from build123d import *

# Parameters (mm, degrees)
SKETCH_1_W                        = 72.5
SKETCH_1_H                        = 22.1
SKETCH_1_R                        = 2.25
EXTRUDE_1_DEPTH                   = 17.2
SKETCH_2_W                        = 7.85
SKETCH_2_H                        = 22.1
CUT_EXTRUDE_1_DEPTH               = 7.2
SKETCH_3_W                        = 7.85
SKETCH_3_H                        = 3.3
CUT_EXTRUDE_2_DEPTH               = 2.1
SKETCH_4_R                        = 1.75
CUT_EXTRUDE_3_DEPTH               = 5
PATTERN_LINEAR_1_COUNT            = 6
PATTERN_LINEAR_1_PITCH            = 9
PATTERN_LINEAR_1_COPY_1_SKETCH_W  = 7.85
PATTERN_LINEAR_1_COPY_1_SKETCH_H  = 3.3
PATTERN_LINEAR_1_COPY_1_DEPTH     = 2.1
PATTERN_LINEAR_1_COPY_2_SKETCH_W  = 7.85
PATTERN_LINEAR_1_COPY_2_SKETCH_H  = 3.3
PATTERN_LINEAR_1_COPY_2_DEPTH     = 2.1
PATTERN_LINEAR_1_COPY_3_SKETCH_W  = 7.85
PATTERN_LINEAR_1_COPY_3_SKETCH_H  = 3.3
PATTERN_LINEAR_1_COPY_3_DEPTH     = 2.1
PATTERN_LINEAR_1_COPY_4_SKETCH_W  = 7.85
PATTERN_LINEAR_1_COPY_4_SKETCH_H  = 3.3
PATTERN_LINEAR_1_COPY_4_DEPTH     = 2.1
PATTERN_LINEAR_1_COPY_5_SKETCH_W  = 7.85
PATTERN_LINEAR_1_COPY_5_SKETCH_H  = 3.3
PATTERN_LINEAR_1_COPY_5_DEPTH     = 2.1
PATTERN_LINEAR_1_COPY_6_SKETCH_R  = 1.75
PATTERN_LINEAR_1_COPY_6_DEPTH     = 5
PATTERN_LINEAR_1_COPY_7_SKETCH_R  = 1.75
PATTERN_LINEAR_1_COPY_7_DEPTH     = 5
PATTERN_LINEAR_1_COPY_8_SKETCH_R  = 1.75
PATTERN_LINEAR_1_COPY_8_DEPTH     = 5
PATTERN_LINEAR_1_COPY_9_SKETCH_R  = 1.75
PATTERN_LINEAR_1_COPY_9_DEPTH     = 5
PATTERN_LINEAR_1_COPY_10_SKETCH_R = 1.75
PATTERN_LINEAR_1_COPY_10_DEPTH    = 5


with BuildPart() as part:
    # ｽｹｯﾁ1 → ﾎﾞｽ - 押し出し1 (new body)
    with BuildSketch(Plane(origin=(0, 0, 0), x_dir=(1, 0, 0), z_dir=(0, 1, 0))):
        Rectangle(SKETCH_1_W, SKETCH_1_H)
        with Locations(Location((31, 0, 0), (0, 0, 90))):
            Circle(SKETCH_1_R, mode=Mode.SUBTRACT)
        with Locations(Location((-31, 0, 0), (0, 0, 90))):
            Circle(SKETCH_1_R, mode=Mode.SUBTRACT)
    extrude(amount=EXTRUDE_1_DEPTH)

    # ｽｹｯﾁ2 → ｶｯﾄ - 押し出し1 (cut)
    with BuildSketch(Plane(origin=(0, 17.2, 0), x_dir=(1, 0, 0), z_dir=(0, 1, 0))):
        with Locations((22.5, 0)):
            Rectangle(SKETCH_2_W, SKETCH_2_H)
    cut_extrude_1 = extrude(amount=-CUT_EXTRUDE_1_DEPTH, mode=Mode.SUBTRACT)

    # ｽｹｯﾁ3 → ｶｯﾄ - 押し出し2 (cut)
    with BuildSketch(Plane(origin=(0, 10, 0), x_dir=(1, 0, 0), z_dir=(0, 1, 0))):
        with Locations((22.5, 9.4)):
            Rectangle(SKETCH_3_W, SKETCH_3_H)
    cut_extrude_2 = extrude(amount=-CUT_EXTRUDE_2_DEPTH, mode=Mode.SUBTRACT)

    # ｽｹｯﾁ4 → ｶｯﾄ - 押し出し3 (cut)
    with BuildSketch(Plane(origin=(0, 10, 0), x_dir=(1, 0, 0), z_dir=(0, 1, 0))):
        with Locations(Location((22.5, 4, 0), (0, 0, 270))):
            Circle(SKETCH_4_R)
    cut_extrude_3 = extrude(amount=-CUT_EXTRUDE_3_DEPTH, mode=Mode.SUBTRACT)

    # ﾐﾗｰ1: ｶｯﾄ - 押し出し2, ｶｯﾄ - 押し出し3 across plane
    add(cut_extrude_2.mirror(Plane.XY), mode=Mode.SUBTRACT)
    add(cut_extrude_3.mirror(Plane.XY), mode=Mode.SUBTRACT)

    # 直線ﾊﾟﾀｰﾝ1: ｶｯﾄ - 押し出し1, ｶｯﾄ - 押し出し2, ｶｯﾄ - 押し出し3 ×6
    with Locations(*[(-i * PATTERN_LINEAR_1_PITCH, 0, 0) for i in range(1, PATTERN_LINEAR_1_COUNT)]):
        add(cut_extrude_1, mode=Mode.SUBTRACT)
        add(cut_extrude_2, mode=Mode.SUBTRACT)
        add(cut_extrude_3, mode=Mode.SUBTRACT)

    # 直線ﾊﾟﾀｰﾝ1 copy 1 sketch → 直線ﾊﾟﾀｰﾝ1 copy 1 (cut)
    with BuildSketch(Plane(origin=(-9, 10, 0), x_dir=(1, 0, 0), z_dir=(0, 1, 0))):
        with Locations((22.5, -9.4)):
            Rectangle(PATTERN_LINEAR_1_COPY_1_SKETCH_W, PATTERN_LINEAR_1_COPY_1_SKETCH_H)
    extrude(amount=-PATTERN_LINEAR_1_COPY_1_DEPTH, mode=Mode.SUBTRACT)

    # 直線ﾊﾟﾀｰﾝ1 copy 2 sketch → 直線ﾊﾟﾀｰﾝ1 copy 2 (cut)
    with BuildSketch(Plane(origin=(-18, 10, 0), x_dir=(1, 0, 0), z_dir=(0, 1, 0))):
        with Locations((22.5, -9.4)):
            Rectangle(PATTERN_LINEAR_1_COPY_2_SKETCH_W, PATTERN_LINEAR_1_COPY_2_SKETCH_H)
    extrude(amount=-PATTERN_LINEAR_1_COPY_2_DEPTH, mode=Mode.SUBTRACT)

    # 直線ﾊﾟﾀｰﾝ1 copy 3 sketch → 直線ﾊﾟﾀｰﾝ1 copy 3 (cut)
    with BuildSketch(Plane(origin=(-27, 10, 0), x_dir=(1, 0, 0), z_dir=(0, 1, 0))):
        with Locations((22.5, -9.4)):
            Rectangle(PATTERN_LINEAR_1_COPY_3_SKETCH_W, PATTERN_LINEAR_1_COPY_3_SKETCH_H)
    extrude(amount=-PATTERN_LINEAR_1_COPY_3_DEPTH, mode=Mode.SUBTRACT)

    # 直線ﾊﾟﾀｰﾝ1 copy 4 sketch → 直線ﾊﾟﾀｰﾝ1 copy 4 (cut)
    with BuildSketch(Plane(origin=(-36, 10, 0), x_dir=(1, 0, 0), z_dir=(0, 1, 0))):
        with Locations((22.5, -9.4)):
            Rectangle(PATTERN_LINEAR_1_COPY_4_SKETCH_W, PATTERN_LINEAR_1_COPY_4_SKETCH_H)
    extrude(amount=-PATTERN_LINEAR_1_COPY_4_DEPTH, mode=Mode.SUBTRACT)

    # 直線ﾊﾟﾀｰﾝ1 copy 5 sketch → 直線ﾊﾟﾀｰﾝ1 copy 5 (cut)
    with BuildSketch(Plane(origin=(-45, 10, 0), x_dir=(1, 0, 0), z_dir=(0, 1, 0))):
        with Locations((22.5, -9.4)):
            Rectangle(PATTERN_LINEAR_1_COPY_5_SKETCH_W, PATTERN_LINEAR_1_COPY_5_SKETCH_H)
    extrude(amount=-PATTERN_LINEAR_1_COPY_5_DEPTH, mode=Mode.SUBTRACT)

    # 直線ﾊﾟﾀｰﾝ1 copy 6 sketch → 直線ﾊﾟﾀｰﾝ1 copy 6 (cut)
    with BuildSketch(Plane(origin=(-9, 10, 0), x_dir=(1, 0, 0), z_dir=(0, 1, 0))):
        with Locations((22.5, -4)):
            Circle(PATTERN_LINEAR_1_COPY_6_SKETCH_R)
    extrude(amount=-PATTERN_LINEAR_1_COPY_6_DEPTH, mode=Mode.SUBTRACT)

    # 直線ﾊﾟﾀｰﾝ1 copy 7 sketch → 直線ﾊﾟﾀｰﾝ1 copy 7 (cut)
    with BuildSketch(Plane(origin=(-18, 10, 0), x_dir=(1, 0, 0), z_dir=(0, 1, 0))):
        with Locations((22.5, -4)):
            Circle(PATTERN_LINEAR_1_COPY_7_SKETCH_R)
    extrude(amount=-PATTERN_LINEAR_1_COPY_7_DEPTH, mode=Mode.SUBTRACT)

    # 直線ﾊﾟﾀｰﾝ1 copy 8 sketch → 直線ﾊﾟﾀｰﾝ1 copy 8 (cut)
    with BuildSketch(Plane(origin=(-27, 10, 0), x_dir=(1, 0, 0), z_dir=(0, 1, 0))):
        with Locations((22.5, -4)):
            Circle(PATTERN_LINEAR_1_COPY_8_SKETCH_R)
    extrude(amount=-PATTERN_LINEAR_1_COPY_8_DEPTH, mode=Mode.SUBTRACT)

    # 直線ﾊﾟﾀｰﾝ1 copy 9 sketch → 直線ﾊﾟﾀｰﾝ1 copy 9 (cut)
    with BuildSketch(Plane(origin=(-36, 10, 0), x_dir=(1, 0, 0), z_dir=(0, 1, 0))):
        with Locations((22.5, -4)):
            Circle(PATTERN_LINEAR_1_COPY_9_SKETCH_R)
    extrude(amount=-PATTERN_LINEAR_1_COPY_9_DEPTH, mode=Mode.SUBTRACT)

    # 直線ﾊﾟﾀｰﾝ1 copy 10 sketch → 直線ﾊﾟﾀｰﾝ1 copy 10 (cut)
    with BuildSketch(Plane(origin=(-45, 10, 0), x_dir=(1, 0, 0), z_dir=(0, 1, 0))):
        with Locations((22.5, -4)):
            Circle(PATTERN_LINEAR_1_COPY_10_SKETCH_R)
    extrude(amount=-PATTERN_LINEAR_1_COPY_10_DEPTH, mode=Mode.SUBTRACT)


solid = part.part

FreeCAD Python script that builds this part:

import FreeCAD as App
import Part
import Sketcher
Q = App.Units.Quantity

doc = App.newDocument("Part")
body = doc.addObject("PartDesign::Body", "Body")

# Sketch on XZ plane
sketch1 = body.newObject("Sketcher::SketchObject", "Sketch")
sketch1.AttachmentSupport = (doc.getObject("XZ_Plane"), [""])
sketch1.MapMode = "FlatFace"
sketch1.addGeometry([
    Part.LineSegment(App.Vector(-36.2, -11.1, 0), App.Vector(-36.2, 11.1, 0)),  # 0
    Part.LineSegment(App.Vector(-36.2, 11.1, 0), App.Vector(36.2, 11.1, 0)),  # 1
    Part.LineSegment(App.Vector(36.2, 11.1, 0), App.Vector(36.2, -11.1, 0)),  # 2
    Part.LineSegment(App.Vector(36.2, -11.1, 0), App.Vector(-36.2, -11.1, 0)),  # 3
    Part.Circle(App.Vector(-31, 0, 0), App.Vector(0, 0, 1), 2.2),  # 4
    Part.Circle(App.Vector(31, 0, 0), App.Vector(0, 0, 1), 2.2),  # 5
], False)
sketch1.addConstraint([
    Sketcher.Constraint("Coincident", 0, 2, 1, 1),
    Sketcher.Constraint("Coincident", 1, 2, 2, 1),
    Sketcher.Constraint("Coincident", 2, 2, 3, 1),
    Sketcher.Constraint("Coincident", 3, 2, 0, 1),
    Sketcher.Constraint("Vertical", 0),
    Sketcher.Constraint("Horizontal", 1),
    Sketcher.Constraint("Vertical", 2),
    Sketcher.Constraint("Horizontal", 3),
    Sketcher.Constraint("Equal", 4, 5),
    Sketcher.Constraint("Symmetric", 4, 3, 5, 3, -1, 1),
    Sketcher.Constraint("Symmetric", 0, 2, 2, 2, -1, 1),
    Sketcher.Constraint("PointOnObject", 4, 3, -1),
    Sketcher.Constraint("Diameter", 4, Q("4.5 mm")),
    Sketcher.Constraint("DistanceX", 1, 1, 1, 2, Q("72.5 mm")),
    Sketcher.Constraint("DistanceY", 0, 1, 0, 2, Q("22.1 mm")),
    Sketcher.Constraint("DistanceX", 4, 3, -1, 1, Q("31 mm")),
])
pad1 = body.newObject("PartDesign::Pad", "Pad")
pad1.Profile = sketch1
pad1.Length = 17.2
pad1.Reversed = True

# Sketch on XZ plane
sketch2 = body.newObject("Sketcher::SketchObject", "Sketch001")
sketch2.AttachmentSupport = (doc.getObject("XZ_Plane"), [""])
sketch2.MapMode = "FlatFace"
sketch2.AttachmentOffset = App.Placement(App.Vector(0, 0, -17.2), App.Rotation())
sketch2.addGeometry([
    Part.LineSegment(App.Vector(19, -11, 0), App.Vector(19, 11, 0)),
    Part.LineSegment(App.Vector(19, 11, 0), App.Vector(26, 11, 0)),
    Part.LineSegment(App.Vector(26, 11, 0), App.Vector(26, -11, 0)),
    Part.LineSegment(App.Vector(26, -11, 0), App.Vector(19, -11, 0)),
], False)
sketch2.addConstraint([
    Sketcher.Constraint("Coincident", 0, 2, 1, 1),
    Sketcher.Constraint("Coincident", 1, 2, 2, 1),
    Sketcher.Constraint("Coincident", 2, 2, 3, 1),
    Sketcher.Constraint("Coincident", 3, 2, 0, 1),
    Sketcher.Constraint("Vertical", 0),
    Sketcher.Constraint("Horizontal", 1),
    Sketcher.Constraint("Vertical", 2),
    Sketcher.Constraint("Horizontal", 3),
    Sketcher.Constraint("DistanceY", 0, 1, 0, 2, Q("22.1 mm")),
    Sketcher.Constraint("DistanceX", 1, 1, 1, 2, Q("7.85 mm")),
    Sketcher.Constraint("DistanceY", -1, 1, 0, 2, Q("11.05 mm")),
    Sketcher.Constraint("DistanceX", -1, 1, 0, 2, Q("18.575 mm")),
])
pocket1 = body.newObject("PartDesign::Pocket", "Pocket")
pocket1.Profile = sketch2
pocket1.Length = 7.2
pocket1.Reversed = True

# Sketch on XZ plane
sketch3 = body.newObject("Sketcher::SketchObject", "Sketch002")
sketch3.AttachmentSupport = (doc.getObject("XZ_Plane"), [""])
sketch3.MapMode = "FlatFace"
sketch3.AttachmentOffset = App.Placement(App.Vector(0, 0, -10), App.Rotation())
sketch3.addGeometry([
    Part.LineSegment(App.Vector(18.6, -11.1, 0), App.Vector(18.6, -7.8, 0)),
    Part.LineSegment(App.Vector(18.6, -7.8, 0), App.Vector(26.4, -7.8, 0)),
    Part.LineSegment(App.Vector(26.4, -7.8, 0), App.Vector(26.4, -11.1, 0)),
    Part.LineSegment(App.Vector(26.4, -11.1, 0), App.Vector(18.6, -11.1, 0)),
], False)
sketch3.addConstraint([
    Sketcher.Constraint("Coincident", 0, 2, 1, 1),
    Sketcher.Constraint("Coincident", 1, 2, 2, 1),
    Sketcher.Constraint("Coincident", 2, 2, 3, 1),
    Sketcher.Constraint("Coincident", 3, 2, 0, 1),
    Sketcher.Constraint("Vertical", 0),
    Sketcher.Constraint("Horizontal", 1),
    Sketcher.Constraint("Vertical", 2),
    Sketcher.Constraint("Horizontal", 3),
    Sketcher.Constraint("DistanceY", 0, 1, 0, 2, Q("3.3 mm")),
    Sketcher.Constraint("DistanceX", 1, 1, 1, 2, Q("7.85 mm")),
    Sketcher.Constraint("DistanceY", 0, 2, -1, 1, Q("7.75 mm")),
    Sketcher.Constraint("DistanceX", -1, 1, 0, 2, Q("18.575 mm")),
])
pocket2 = body.newObject("PartDesign::Pocket", "Pocket001")
pocket2.Profile = sketch3
pocket2.Length = 2.1
pocket2.Reversed = True

# Sketch on XZ plane
sketch4 = body.newObject("Sketcher::SketchObject", "Sketch003")
sketch4.AttachmentSupport = (doc.getObject("XZ_Plane"), [""])
sketch4.MapMode = "FlatFace"
sketch4.AttachmentOffset = App.Placement(App.Vector(0, 0, -10), App.Rotation())
sketch4.addGeometry(Part.Circle(App.Vector(22.5, -4, 0), App.Vector(0, 0, 1), 1.8), False)
sketch4.addConstraint([
    Sketcher.Constraint("Diameter", 0, Q("3.5 mm")),
    Sketcher.Constraint("DistanceY", 0, 3, -1, 1, Q("4 mm")),
    Sketcher.Constraint("DistanceX", -1, 1, 0, 3, Q("22.5 mm")),
])
pocket3 = body.newObject("PartDesign::Pocket", "Pocket002")
pocket3.Profile = sketch4
pocket3.Length = 5
pocket3.Reversed = True
doc.recompute()

mirrored = body.newObject("PartDesign::Mirrored", "Mirrored")
mirrored.Originals = [pocket2, pocket3]
mirrored.MirrorPlane = (doc.getObject("XY_Plane"), [""])
body.Tip = mirrored
doc.recompute()

linearpattern = body.newObject("PartDesign::LinearPattern", "LinearPattern")
linearpattern.Originals = [pocket1, pocket2, pocket3]
linearpattern.Direction = (doc.getObject("X_Axis"), [""])
linearpattern.Mode = "offset"
linearpattern.Offset = 9
linearpattern.Occurrences = 6
linearpattern.Reversed = True
body.Tip = linearpattern

# Sketch on XZ plane
sketch5 = body.newObject("Sketcher::SketchObject", "Sketch004")
sketch5.AttachmentSupport = (doc.getObject("XZ_Plane"), [""])
sketch5.MapMode = "FlatFace"
sketch5.AttachmentOffset = App.Placement(App.Vector(0, 0, -10), App.Rotation())
sketch5.addGeometry([
    Part.LineSegment(App.Vector(9.6, 7.8, 0), App.Vector(9.6, 11.1, 0)),
    Part.LineSegment(App.Vector(9.6, 11.1, 0), App.Vector(17.4, 11.1, 0)),
    Part.LineSegment(App.Vector(17.4, 11.1, 0), App.Vector(17.4, 7.8, 0)),
    Part.LineSegment(App.Vector(17.4, 7.8, 0), App.Vector(9.6, 7.8, 0)),
], False)
sketch5.addConstraint([
    Sketcher.Constraint("Coincident", 0, 2, 1, 1),
    Sketcher.Constraint("Coincident", 1, 2, 2, 1),
    Sketcher.Constraint("Coincident", 2, 2, 3, 1),
    Sketcher.Constraint("Coincident", 3, 2, 0, 1),
    Sketcher.Constraint("Vertical", 0),
    Sketcher.Constraint("Horizontal", 1),
    Sketcher.Constraint("Vertical", 2),
    Sketcher.Constraint("Horizontal", 3),
    Sketcher.Constraint("DistanceY", 0, 1, 0, 2, Q("3.3 mm")),
    Sketcher.Constraint("DistanceX", 1, 1, 1, 2, Q("7.85 mm")),
    Sketcher.Constraint("DistanceY", -1, 1, 0, 2, Q("11.05 mm")),
    Sketcher.Constraint("DistanceX", -1, 1, 0, 2, Q("9.575 mm")),
])
pocket4 = body.newObject("PartDesign::Pocket", "Pocket003")
pocket4.Profile = sketch5
pocket4.Length = 2.1
pocket4.Reversed = True

# Sketch on XZ plane
sketch6 = body.newObject("Sketcher::SketchObject", "Sketch005")
sketch6.AttachmentSupport = (doc.getObject("XZ_Plane"), [""])
sketch6.MapMode = "FlatFace"
sketch6.AttachmentOffset = App.Placement(App.Vector(0, 0, -10), App.Rotation())
sketch6.addGeometry([
    Part.LineSegment(App.Vector(0.6, 7.8, 0), App.Vector(0.6, 11.1, 0)),
    Part.LineSegment(App.Vector(0.6, 11.1, 0), App.Vector(8.4, 11.1, 0)),
    Part.LineSegment(App.Vector(8.4, 11.1, 0), App.Vector(8.4, 7.8, 0)),
    Part.LineSegment(App.Vector(8.4, 7.8, 0), App.Vector(0.6, 7.8, 0)),
], False)
sketch6.addConstraint([
    Sketcher.Constraint("Coincident", 0, 2, 1, 1),
    Sketcher.Constraint("Coincident", 1, 2, 2, 1),
    Sketcher.Constraint("Coincident", 2, 2, 3, 1),
    Sketcher.Constraint("Coincident", 3, 2, 0, 1),
    Sketcher.Constraint("Vertical", 0),
    Sketcher.Constraint("Horizontal", 1),
    Sketcher.Constraint("Vertical", 2),
    Sketcher.Constraint("Horizontal", 3),
    Sketcher.Constraint("DistanceY", 0, 1, 0, 2, Q("3.3 mm")),
    Sketcher.Constraint("DistanceX", 1, 1, 1, 2, Q("7.85 mm")),
    Sketcher.Constraint("DistanceY", -1, 1, 0, 2, Q("11.05 mm")),
    Sketcher.Constraint("DistanceX", -1, 1, 0, 2, Q("0.575 mm")),
])
pocket5 = body.newObject("PartDesign::Pocket", "Pocket004")
pocket5.Profile = sketch6
pocket5.Length = 2.1
pocket5.Reversed = True

# Sketch on XZ plane
sketch7 = body.newObject("Sketcher::SketchObject", "Sketch006")
sketch7.AttachmentSupport = (doc.getObject("XZ_Plane"), [""])
sketch7.MapMode = "FlatFace"
sketch7.AttachmentOffset = App.Placement(App.Vector(0, 0, -10), App.Rotation())
sketch7.addGeometry([
    Part.LineSegment(App.Vector(-8.4, 7.8, 0), App.Vector(-8.4, 11.1, 0)),
    Part.LineSegment(App.Vector(-8.4, 11.1, 0), App.Vector(-0.6, 11.1, 0)),
    Part.LineSegment(App.Vector(-0.6, 11.1, 0), App.Vector(-0.6, 7.8, 0)),
    Part.LineSegment(App.Vector(-0.6, 7.8, 0), App.Vector(-8.4, 7.8, 0)),
], False)
sketch7.addConstraint([
    Sketcher.Constraint("Coincident", 0, 2, 1, 1),
    Sketcher.Constraint("Coincident", 1, 2, 2, 1),
    Sketcher.Constraint("Coincident", 2, 2, 3, 1),
    Sketcher.Constraint("Coincident", 3, 2, 0, 1),
    Sketcher.Constraint("Vertical", 0),
    Sketcher.Constraint("Horizontal", 1),
    Sketcher.Constraint("Vertical", 2),
    Sketcher.Constraint("Horizontal", 3),
    Sketcher.Constraint("DistanceY", 0, 1, 0, 2, Q("3.3 mm")),
    Sketcher.Constraint("DistanceX", 1, 1, 1, 2, Q("7.85 mm")),
    Sketcher.Constraint("DistanceY", -1, 1, 0, 2, Q("11.05 mm")),
    Sketcher.Constraint("DistanceX", 0, 2, -1, 1, Q("8.425 mm")),
])
pocket6 = body.newObject("PartDesign::Pocket", "Pocket005")
pocket6.Profile = sketch7
pocket6.Length = 2.1
pocket6.Reversed = True

# Sketch on XZ plane
sketch8 = body.newObject("Sketcher::SketchObject", "Sketch007")
sketch8.AttachmentSupport = (doc.getObject("XZ_Plane"), [""])
sketch8.MapMode = "FlatFace"
sketch8.AttachmentOffset = App.Placement(App.Vector(0, 0, -10), App.Rotation())
sketch8.addGeometry([
    Part.LineSegment(App.Vector(-17.4, 7.8, 0), App.Vector(-17.4, 11.1, 0)),
    Part.LineSegment(App.Vector(-17.4, 11.1, 0), App.Vector(-9.6, 11.1, 0)),
    Part.LineSegment(App.Vector(-9.6, 11.1, 0), App.Vector(-9.6, 7.8, 0)),
    Part.LineSegment(App.Vector(-9.6, 7.8, 0), App.Vector(-17.4, 7.8, 0)),
], False)
sketch8.addConstraint([
    Sketcher.Constraint("Coincident", 0, 2, 1, 1),
    Sketcher.Constraint("Coincident", 1, 2, 2, 1),
    Sketcher.Constraint("Coincident", 2, 2, 3, 1),
    Sketcher.Constraint("Coincident", 3, 2, 0, 1),
    Sketcher.Constraint("Vertical", 0),
    Sketcher.Constraint("Horizontal", 1),
    Sketcher.Constraint("Vertical", 2),
    Sketcher.Constraint("Horizontal", 3),
    Sketcher.Constraint("DistanceY", 0, 1, 0, 2, Q("3.3 mm")),
    Sketcher.Constraint("DistanceX", 1, 1, 1, 2, Q("7.85 mm")),
    Sketcher.Constraint("DistanceY", -1, 1, 0, 2, Q("11.05 mm")),
    Sketcher.Constraint("DistanceX", 0, 2, -1, 1, Q("17.425 mm")),
])
pocket7 = body.newObject("PartDesign::Pocket", "Pocket006")
pocket7.Profile = sketch8
pocket7.Length = 2.1
pocket7.Reversed = True

# Sketch on XZ plane
sketch9 = body.newObject("Sketcher::SketchObject", "Sketch008")
sketch9.AttachmentSupport = (doc.getObject("XZ_Plane"), [""])
sketch9.MapMode = "FlatFace"
sketch9.AttachmentOffset = App.Placement(App.Vector(0, 0, -10), App.Rotation())
sketch9.addGeometry([
    Part.LineSegment(App.Vector(-26.4, 7.8, 0), App.Vector(-26.4, 11.1, 0)),
    Part.LineSegment(App.Vector(-26.4, 11.1, 0), App.Vector(-18.6, 11.1, 0)),
    Part.LineSegment(App.Vector(-18.6, 11.1, 0), App.Vector(-18.6, 7.8, 0)),
    Part.LineSegment(App.Vector(-18.6, 7.8, 0), App.Vector(-26.4, 7.8, 0)),
], False)
sketch9.addConstraint([
    Sketcher.Constraint("Coincident", 0, 2, 1, 1),
    Sketcher.Constraint("Coincident", 1, 2, 2, 1),
    Sketcher.Constraint("Coincident", 2, 2, 3, 1),
    Sketcher.Constraint("Coincident", 3, 2, 0, 1),
    Sketcher.Constraint("Vertical", 0),
    Sketcher.Constraint("Horizontal", 1),
    Sketcher.Constraint("Vertical", 2),
    Sketcher.Constraint("Horizontal", 3),
    Sketcher.Constraint("DistanceY", 0, 1, 0, 2, Q("3.3 mm")),
    Sketcher.Constraint("DistanceX", 1, 1, 1, 2, Q("7.85 mm")),
    Sketcher.Constraint("DistanceY", -1, 1, 0, 2, Q("11.05 mm")),
    Sketcher.Constraint("DistanceX", 0, 2, -1, 1, Q("26.425 mm")),
])
pocket8 = body.newObject("PartDesign::Pocket", "Pocket007")
pocket8.Profile = sketch9
pocket8.Length = 2.1
pocket8.Reversed = True

# Sketch on XZ plane
sketch10 = body.newObject("Sketcher::SketchObject", "Sketch009")
sketch10.AttachmentSupport = (doc.getObject("XZ_Plane"), [""])
sketch10.MapMode = "FlatFace"
sketch10.AttachmentOffset = App.Placement(App.Vector(0, 0, -10), App.Rotation())
sketch10.addGeometry(Part.Circle(App.Vector(13.5, 4, 0), App.Vector(0, 0, 1), 1.8), False)
sketch10.addConstraint([
    Sketcher.Constraint("Diameter", 0, Q("3.5 mm")),
    Sketcher.Constraint("DistanceY", -1, 1, 0, 3, Q("4 mm")),
    Sketcher.Constraint("DistanceX", -1, 1, 0, 3, Q("13.5 mm")),
])
pocket9 = body.newObject("PartDesign::Pocket", "Pocket008")
pocket9.Profile = sketch10
pocket9.Length = 5
pocket9.Reversed = True

# Sketch on XZ plane
sketch11 = body.newObject("Sketcher::SketchObject", "Sketch010")
sketch11.AttachmentSupport = (doc.getObject("XZ_Plane"), [""])
sketch11.MapMode = "FlatFace"
sketch11.AttachmentOffset = App.Placement(App.Vector(0, 0, -10), App.Rotation())
sketch11.addGeometry(Part.Circle(App.Vector(4.5, 4, 0), App.Vector(0, 0, 1), 1.8), False)
sketch11.addConstraint([
    Sketcher.Constraint("Diameter", 0, Q("3.5 mm")),
    Sketcher.Constraint("DistanceY", -1, 1, 0, 3, Q("4 mm")),
    Sketcher.Constraint("DistanceX", -1, 1, 0, 3, Q("4.5 mm")),
])
pocket10 = body.newObject("PartDesign::Pocket", "Pocket009")
pocket10.Profile = sketch11
pocket10.Length = 5
pocket10.Reversed = True

# Sketch on XZ plane
sketch12 = body.newObject("Sketcher::SketchObject", "Sketch011")
sketch12.AttachmentSupport = (doc.getObject("XZ_Plane"), [""])
sketch12.MapMode = "FlatFace"
sketch12.AttachmentOffset = App.Placement(App.Vector(0, 0, -10), App.Rotation())
sketch12.addGeometry(Part.Circle(App.Vector(-4.5, 4, 0), App.Vector(0, 0, 1), 1.8), False)
sketch12.addConstraint([
    Sketcher.Constraint("Diameter", 0, Q("3.5 mm")),
    Sketcher.Constraint("DistanceY", -1, 1, 0, 3, Q("4 mm")),
    Sketcher.Constraint("DistanceX", 0, 3, -1, 1, Q("4.5 mm")),
])
pocket11 = body.newObject("PartDesign::Pocket", "Pocket010")
pocket11.Profile = sketch12
pocket11.Length = 5
pocket11.Reversed = True

# Sketch on XZ plane
sketch13 = body.newObject("Sketcher::SketchObject", "Sketch012")
sketch13.AttachmentSupport = (doc.getObject("XZ_Plane"), [""])
sketch13.MapMode = "FlatFace"
sketch13.AttachmentOffset = App.Placement(App.Vector(0, 0, -10), App.Rotation())
sketch13.addGeometry(Part.Circle(App.Vector(-13.5, 4, 0), App.Vector(0, 0, 1), 1.8), False)
sketch13.addConstraint([
    Sketcher.Constraint("Diameter", 0, Q("3.5 mm")),
    Sketcher.Constraint("DistanceY", -1, 1, 0, 3, Q("4 mm")),
    Sketcher.Constraint("DistanceX", 0, 3, -1, 1, Q("13.5 mm")),
])
pocket12 = body.newObject("PartDesign::Pocket", "Pocket011")
pocket12.Profile = sketch13
pocket12.Length = 5
pocket12.Reversed = True

# Sketch on XZ plane
sketch14 = body.newObject("Sketcher::SketchObject", "Sketch013")
sketch14.AttachmentSupport = (doc.getObject("XZ_Plane"), [""])
sketch14.MapMode = "FlatFace"
sketch14.AttachmentOffset = App.Placement(App.Vector(0, 0, -10), App.Rotation())
sketch14.addGeometry(Part.Circle(App.Vector(-22.5, 4, 0), App.Vector(0, 0, 1), 1.8), False)
sketch14.addConstraint([
    Sketcher.Constraint("Diameter", 0, Q("3.5 mm")),
    Sketcher.Constraint("DistanceY", -1, 1, 0, 3, Q("4 mm")),
    Sketcher.Constraint("DistanceX", 0, 3, -1, 1, Q("22.5 mm")),
])
pocket13 = body.newObject("PartDesign::Pocket", "Pocket012")
pocket13.Profile = sketch14
pocket13.Length = 5
pocket13.Reversed = True

doc.recompute()
